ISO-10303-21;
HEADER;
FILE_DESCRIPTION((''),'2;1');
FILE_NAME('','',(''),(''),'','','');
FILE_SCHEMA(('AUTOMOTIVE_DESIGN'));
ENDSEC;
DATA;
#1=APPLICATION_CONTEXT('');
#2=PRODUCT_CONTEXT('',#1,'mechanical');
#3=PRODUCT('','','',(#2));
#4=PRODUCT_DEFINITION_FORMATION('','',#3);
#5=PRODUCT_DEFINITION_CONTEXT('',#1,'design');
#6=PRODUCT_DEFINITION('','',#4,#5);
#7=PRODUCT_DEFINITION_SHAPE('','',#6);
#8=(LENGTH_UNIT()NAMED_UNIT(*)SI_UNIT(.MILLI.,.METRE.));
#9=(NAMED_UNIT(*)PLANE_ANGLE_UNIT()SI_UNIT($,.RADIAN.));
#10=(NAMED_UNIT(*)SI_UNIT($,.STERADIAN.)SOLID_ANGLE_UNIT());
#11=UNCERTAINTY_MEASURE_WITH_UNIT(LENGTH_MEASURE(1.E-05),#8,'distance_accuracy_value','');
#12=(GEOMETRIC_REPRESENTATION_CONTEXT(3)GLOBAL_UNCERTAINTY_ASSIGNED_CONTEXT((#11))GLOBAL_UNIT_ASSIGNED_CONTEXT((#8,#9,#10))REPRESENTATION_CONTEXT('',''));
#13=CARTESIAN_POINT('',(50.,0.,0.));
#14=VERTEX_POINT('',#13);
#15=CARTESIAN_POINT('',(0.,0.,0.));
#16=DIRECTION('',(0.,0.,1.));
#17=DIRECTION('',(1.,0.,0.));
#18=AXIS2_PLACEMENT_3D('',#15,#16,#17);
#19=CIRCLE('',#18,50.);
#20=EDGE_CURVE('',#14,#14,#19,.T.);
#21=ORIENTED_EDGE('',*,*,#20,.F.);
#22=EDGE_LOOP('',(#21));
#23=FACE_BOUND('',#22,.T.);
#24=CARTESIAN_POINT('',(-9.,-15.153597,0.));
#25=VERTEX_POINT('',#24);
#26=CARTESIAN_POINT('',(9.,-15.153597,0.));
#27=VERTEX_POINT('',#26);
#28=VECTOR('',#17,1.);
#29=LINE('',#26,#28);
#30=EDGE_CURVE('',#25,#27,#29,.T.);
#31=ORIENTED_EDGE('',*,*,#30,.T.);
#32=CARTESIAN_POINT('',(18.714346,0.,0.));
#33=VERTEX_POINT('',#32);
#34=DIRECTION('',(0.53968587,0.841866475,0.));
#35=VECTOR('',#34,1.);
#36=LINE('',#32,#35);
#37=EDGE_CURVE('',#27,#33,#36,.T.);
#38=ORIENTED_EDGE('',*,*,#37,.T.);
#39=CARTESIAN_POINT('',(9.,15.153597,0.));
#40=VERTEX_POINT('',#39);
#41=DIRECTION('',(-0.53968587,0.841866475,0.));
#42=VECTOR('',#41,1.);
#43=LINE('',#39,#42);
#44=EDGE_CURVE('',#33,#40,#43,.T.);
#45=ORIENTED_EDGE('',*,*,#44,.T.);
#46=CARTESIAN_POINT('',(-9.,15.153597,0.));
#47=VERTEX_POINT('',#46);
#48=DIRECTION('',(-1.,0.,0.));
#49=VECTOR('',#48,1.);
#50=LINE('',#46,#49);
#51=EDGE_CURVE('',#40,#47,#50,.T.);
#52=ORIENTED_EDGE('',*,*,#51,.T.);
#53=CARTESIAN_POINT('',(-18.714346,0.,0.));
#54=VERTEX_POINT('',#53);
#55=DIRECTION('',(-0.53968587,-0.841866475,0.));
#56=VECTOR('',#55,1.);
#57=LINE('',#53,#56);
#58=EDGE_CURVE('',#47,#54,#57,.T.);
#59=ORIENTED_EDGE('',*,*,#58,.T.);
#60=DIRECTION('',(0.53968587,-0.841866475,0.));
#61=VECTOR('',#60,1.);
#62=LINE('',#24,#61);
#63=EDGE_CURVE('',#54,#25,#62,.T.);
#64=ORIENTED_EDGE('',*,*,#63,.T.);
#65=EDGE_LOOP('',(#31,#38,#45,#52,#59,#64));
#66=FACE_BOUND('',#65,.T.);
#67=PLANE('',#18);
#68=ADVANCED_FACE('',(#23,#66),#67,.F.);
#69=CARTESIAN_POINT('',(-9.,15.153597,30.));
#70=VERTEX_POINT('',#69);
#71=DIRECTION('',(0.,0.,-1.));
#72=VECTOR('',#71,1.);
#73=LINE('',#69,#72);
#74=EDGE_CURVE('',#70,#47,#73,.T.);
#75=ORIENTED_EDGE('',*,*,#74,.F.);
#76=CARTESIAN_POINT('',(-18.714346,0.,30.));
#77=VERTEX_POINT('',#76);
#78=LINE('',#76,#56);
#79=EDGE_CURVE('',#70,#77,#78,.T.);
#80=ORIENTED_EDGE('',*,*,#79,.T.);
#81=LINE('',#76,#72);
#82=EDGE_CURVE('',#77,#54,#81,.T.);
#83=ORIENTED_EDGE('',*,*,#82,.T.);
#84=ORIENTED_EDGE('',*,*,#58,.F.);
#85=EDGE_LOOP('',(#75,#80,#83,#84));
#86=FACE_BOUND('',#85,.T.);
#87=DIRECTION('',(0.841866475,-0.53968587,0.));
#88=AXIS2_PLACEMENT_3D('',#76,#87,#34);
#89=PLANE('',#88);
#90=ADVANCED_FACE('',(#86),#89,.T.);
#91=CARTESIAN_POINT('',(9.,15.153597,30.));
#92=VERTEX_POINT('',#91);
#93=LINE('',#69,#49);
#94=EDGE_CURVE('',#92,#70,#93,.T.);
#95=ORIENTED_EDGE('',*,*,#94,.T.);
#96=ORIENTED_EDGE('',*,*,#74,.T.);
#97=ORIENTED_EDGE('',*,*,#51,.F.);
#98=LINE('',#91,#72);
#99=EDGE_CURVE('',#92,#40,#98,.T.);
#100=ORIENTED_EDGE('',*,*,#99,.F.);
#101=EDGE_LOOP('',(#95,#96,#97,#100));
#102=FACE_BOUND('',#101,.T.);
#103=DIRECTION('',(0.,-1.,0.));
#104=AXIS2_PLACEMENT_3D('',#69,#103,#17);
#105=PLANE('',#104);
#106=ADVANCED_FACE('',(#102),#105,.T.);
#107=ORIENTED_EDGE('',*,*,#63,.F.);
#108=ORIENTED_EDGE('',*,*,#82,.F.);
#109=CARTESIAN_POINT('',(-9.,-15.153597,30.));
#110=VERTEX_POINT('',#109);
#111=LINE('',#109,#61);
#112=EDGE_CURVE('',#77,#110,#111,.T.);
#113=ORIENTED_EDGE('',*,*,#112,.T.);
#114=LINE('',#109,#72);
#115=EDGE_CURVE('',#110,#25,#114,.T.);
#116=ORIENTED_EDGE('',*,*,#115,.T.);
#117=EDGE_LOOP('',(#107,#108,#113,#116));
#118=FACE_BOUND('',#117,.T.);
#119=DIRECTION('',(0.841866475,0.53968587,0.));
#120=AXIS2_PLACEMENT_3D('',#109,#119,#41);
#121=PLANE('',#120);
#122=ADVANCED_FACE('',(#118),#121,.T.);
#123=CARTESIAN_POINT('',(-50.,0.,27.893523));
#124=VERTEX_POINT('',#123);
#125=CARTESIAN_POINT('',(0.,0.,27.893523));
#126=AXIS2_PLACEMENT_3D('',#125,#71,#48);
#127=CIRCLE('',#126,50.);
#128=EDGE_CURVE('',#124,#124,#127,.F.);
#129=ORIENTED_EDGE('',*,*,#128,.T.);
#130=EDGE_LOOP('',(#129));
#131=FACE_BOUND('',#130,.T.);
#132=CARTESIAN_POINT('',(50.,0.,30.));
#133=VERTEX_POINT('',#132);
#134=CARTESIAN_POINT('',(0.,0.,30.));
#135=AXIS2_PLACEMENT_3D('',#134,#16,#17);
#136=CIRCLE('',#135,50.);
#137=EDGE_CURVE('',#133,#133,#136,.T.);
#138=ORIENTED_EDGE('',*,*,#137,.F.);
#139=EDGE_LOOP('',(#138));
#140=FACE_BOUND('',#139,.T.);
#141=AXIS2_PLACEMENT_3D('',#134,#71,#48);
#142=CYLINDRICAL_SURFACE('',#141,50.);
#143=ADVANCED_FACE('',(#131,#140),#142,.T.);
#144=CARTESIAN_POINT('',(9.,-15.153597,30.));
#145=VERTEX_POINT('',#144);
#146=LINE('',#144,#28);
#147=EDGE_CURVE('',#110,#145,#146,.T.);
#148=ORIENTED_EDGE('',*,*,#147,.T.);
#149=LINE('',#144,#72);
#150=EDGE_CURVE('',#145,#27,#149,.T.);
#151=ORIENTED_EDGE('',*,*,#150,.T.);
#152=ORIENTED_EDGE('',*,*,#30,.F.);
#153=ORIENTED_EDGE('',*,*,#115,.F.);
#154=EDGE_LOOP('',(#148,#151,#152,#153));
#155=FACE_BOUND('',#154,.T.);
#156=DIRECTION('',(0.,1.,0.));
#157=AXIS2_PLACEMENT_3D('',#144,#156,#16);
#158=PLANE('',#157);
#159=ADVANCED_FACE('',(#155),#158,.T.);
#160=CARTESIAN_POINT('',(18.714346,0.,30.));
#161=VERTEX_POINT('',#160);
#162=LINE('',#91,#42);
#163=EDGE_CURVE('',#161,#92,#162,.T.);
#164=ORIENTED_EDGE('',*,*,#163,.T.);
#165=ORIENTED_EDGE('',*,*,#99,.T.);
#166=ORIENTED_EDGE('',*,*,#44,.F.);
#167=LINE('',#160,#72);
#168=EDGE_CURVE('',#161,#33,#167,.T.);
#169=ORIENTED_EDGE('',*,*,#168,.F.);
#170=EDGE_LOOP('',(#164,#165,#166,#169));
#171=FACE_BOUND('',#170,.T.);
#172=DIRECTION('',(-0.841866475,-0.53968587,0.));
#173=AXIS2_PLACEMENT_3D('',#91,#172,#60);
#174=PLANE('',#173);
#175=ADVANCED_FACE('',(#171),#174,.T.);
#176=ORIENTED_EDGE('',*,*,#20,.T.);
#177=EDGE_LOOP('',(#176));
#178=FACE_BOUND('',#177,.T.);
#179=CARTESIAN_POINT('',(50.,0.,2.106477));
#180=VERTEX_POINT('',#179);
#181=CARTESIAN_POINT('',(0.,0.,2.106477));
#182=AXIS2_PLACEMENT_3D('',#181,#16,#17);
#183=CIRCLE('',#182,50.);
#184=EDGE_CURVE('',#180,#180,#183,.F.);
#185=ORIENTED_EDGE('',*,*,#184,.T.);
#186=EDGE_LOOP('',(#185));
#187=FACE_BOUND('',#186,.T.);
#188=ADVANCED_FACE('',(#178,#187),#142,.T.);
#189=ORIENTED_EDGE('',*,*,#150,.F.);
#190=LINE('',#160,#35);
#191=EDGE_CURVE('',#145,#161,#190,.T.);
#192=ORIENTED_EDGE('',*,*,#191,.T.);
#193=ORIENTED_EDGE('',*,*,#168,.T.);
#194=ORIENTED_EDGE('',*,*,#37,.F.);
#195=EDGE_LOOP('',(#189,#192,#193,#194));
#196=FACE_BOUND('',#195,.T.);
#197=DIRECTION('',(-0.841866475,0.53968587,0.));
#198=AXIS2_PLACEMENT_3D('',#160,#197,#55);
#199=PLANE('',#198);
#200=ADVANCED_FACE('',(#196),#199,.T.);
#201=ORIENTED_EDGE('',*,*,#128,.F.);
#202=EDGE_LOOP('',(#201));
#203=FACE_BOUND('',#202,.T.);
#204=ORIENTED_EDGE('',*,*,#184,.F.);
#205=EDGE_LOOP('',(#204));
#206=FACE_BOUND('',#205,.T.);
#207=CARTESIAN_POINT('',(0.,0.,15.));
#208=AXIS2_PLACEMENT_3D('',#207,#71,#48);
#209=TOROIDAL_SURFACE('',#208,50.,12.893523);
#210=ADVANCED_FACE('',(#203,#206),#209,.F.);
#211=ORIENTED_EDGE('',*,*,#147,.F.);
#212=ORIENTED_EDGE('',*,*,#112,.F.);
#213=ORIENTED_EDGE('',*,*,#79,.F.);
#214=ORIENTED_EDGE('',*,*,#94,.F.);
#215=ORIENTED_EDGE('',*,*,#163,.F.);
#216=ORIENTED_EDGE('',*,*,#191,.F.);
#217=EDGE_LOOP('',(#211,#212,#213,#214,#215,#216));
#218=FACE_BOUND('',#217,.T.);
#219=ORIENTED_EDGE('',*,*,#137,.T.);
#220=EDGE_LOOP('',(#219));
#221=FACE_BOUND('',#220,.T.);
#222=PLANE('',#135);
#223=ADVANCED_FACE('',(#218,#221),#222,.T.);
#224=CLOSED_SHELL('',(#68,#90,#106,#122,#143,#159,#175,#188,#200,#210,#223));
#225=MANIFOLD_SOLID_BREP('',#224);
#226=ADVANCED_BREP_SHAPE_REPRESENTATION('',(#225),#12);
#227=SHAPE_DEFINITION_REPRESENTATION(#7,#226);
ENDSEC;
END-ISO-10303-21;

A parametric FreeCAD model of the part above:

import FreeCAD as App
import Part
import Sketcher
from FreeCAD import Vector
Q = App.Units.Quantity

doc = App.newDocument("Part")
body = doc.addObject("PartDesign::Body", "Body")

# Sketch on XY plane
sketch1 = body.newObject("Sketcher::SketchObject", "Sketch")
sketch1.AttachmentSupport = (doc.getObject("XY_Plane"), [""])
sketch1.MapMode = "FlatFace"
sketch1.addGeometry(Part.Circle(Vector(0, 0, 0), Vector(0, 0, 1), 50), False)
sketch1.addGeometry(Part.LineSegment(Vector(-19, 0, 0), Vector(-9, 15, 0)), False)
sketch1.addGeometry(Part.LineSegment(Vector(-9, 15, 0), Vector(9, 15, 0)), False)
sketch1.addGeometry(Part.LineSegment(Vector(9, 15, 0), Vector(19, 0, 0)), False)
sketch1.addGeometry(Part.LineSegment(Vector(19, 0, 0), Vector(9, -15, 0)), False)
sketch1.addGeometry(Part.LineSegment(Vector(9, -15, 0), Vector(-9, -15, 0)), False)
sketch1.addGeometry(Part.LineSegment(Vector(-9, -15, 0), Vector(-19, 0, 0)), False)
sketch1.addConstraint(Sketcher.Constraint("Coincident", 1, 2, 2, 1))
sketch1.addConstraint(Sketcher.Constraint("Coincident", 2, 2, 3, 1))
sketch1.addConstraint(Sketcher.Constraint("Coincident", 3, 2, 4, 1))
sketch1.addConstraint(Sketcher.Constraint("Coincident", 4, 2, 5, 1))
sketch1.addConstraint(Sketcher.Constraint("Coincident", 5, 2, 6, 1))
sketch1.addConstraint(Sketcher.Constraint("Coincident", 6, 2, 1, 1))
sketch1.addConstraint(Sketcher.Constraint("Horizontal", 2))
sketch1.addConstraint(Sketcher.Constraint("Horizontal", 5))
sketch1.addConstraint(Sketcher.Constraint("Coincident", 0, 3, -1, 1))
sketch1.addConstraint(Sketcher.Constraint("Symmetric", 1, 2, 4, 2, -1, 1))
sketch1.addConstraint(Sketcher.Constraint("Symmetric", 3, 2, 6, 2, -1, 1))
sketch1.addConstraint(Sketcher.Constraint("PointOnObject", 3, 2, -1))
sketch1.addConstraint(Sketcher.Constraint("Parallel", 3, 6))
sketch1.addConstraint(Sketcher.Constraint("Vertical", 2, 2, 4, 2))
sketch1.addConstraint(Sketcher.Constraint("Diameter", 0, Q("100 mm")))
sketch1.addConstraint(Sketcher.Constraint("DistanceX", 2, 1, 2, 2, Q("18 mm")))
sketch1.addConstraint(Sketcher.Constraint("Distance", 1, Q("18 mm")))
sketch1.addConstraint(Sketcher.Constraint("DistanceY", -1, 1, 1, 2, Q("15.153597 mm")))
pad1 = body.newObject("PartDesign::Pad", "Pad")
pad1.Profile = sketch1
pad1.Length = 30

# Sketch on YZ plane
sketch2 = body.newObject("Sketcher::SketchObject", "Sketch001")
sketch2.AttachmentSupport = (doc.getObject("YZ_Plane"), [""])
sketch2.MapMode = "FlatFace"
sketch2.addGeometry(Part.Circle(Vector(50, 15, 0), Vector(0, 0, 1), 13), False)
sketch2.addConstraint(Sketcher.Constraint("DistanceX", -1, 1, 0, 3, Q("50 mm")))
sketch2.addConstraint(Sketcher.Constraint("DistanceY", -1, 1, 0, 3, Q("15 mm")))
sketch2.addConstraint(Sketcher.Constraint("Diameter", 0, Q("25.787046 mm")))
groove = body.newObject("PartDesign::Groove", "Groove")
groove.Profile = sketch2
groove.ReferenceAxis = (sketch2, ["V_Axis"])
groove.Angle = 360

doc.recompute()
